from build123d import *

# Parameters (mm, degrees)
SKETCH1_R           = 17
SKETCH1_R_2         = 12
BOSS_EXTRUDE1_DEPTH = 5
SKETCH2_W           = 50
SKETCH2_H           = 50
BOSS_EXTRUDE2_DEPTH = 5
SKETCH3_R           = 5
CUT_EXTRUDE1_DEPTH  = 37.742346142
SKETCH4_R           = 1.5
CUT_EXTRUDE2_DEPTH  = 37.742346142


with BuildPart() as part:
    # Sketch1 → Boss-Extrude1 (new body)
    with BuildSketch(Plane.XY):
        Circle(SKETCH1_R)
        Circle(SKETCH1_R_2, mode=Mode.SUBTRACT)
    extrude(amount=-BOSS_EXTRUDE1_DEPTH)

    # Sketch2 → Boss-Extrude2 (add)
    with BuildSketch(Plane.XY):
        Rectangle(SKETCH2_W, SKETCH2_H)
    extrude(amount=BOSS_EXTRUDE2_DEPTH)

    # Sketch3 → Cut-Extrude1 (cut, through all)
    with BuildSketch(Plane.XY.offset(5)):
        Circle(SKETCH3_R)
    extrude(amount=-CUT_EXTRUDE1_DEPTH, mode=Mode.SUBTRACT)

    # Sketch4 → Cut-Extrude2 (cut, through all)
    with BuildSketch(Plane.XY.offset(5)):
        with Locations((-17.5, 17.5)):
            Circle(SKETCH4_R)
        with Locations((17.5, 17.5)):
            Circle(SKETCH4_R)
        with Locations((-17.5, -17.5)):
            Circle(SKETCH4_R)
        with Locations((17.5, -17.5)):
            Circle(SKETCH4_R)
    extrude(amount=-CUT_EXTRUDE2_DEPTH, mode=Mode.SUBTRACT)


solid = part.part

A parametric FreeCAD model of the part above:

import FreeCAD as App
import Part
import Sketcher
from FreeCAD import Vector


def add_polygon(sketch, points):
    """Adds a closed chain of lines whose ends are joined by coincident constraints."""
    first, n = sketch.GeometryCount, len(points)
    for a, b in zip(points, points[1:] + points[:1]):
        sketch.addGeometry(Part.LineSegment(App.Vector(*a, 0), App.Vector(*b, 0)), False)
    for i in range(n):
        sketch.addConstraint(Sketcher.Constraint("Coincident", first + i, 2, first + (i + 1) % n, 1))

doc = App.newDocument("Part")
params = doc.addObject("Spreadsheet::Sheet", "Params")
for row, (alias, value) in enumerate([
    ("sketch1_diameter", "34 mm"),
    ("sketch1_diameter2", "24 mm"),
    ("pad1_length", "5 mm"),
    ("sketch2_width", "50 mm"),
    ("pad2_length", "5 mm"),
    ("sketch3_diameter", "10 mm"),
    ("sketch4_diameter", "3 mm"),
], start=1):
    params.set(f"A{row}", alias)
    params.set(f"B{row}", "=" + value)
    params.setAlias(f"B{row}", alias)

body = doc.addObject("PartDesign::Body", "Body")

# Sketch on XY plane
sketch1 = body.newObject("Sketcher::SketchObject", "Sketch")
sketch1.AttachmentSupport = (doc.getObject("XY_Plane"), [""])
sketch1.MapMode = "FlatFace"
sketch1.addGeometry([
    Part.Circle(Vector(0, 0, 0), Vector(0, 0, 1), 17),
    Part.Circle(Vector(0, 0, 0), Vector(0, 0, 1), 12),
], False)
sketch1.addConstraint([
    Sketcher.Constraint("Coincident", 0, 3, -1, 1),
    Sketcher.Constraint("Coincident", 1, 3, -1, 1),
    Sketcher.Constraint("Diameter", 0, 34.0),
    Sketcher.Constraint("Diameter", 1, 24.0),
])
sketch1.setExpression("Constraints[2]", "Params.sketch1_diameter")
sketch1.setExpression("Constraints[3]", "Params.sketch1_diameter2")
pad1 = body.newObject("PartDesign::Pad", "Pad")
pad1.Profile = sketch1
pad1.setExpression("Length", "Params.pad1_length")
pad1.Reversed = True

# Sketch on XY plane
sketch2 = body.newObject("Sketcher::SketchObject", "Sketch001")
sketch2.AttachmentSupport = (doc.getObject("XY_Plane"), [""])
sketch2.MapMode = "FlatFace"
add_polygon(sketch2, [(-25, 25), (-25, -25), (25, -25), (25, 25)])  # lines 0-3
sketch2.addConstraint([
    Sketcher.Constraint("Vertical", 0),
    Sketcher.Constraint("Horizontal", 1),
    Sketcher.Constraint("Vertical", 2),
    Sketcher.Constraint("Horizontal", 3),
    Sketcher.Constraint("Symmetric", 0, 2, 2, 2, -1, 1),
    Sketcher.Constraint("Equal", 3, 0),
    Sketcher.Constraint("DistanceX", 1, 1, 1, 2, 50.0),
])
sketch2.setExpression("Constraints[10]", "Params.sketch2_width")
pad2 = body.newObject("PartDesign::Pad", "Pad001")
pad2.Profile = sketch2
pad2.setExpression("Length", "Params.pad2_length")

# Sketch on XY plane
sketch3 = body.newObject("Sketcher::SketchObject", "Sketch002")
sketch3.AttachmentSupport = (doc.getObject("XY_Plane"), [""])
sketch3.MapMode = "FlatFace"
sketch3.AttachmentOffset = App.Placement(Vector(0, 0, 5), App.Rotation())
sketch3.addGeometry(Part.Circle(Vector(0, 0, 0), Vector(0, 0, 1), 5), False)
sketch3.addConstraint([
    Sketcher.Constraint("Coincident", 0, 3, -1, 1),
    Sketcher.Constraint("Diameter", 0, 10.0),
])
sketch3.setExpression("Constraints[1]", "Params.sketch3_diameter")
pocket1 = body.newObject("PartDesign::Pocket", "Pocket")
pocket1.Profile = sketch3
pocket1.Type = "ThroughAll"

# Sketch on XY plane
sketch4 = body.newObject("Sketcher::SketchObject", "Sketch003")
sketch4.AttachmentSupport = (doc.getObject("XY_Plane"), [""])
sketch4.MapMode = "FlatFace"
sketch4.AttachmentOffset = App.Placement(Vector(0, 0, 5), App.Rotation())
sketch4.addGeometry([
    Part.Circle(Vector(-17.5, 17.5, 0), Vector(0, 0, 1), 1.5),
    Part.Circle(Vector(17.5, 17.5, 0), Vector(0, 0, 1), 1.5),
    Part.Circle(Vector(-17.5, -17.5, 0), Vector(0, 0, 1), 1.5),
    Part.Circle(Vector(17.5, -17.5, 0), Vector(0, 0, 1), 1.5),
], False)
sketch4.addConstraint([
    Sketcher.Constraint("Equal", 0, 1),
    Sketcher.Constraint("Equal", 1, 2),
    Sketcher.Constraint("Equal", 2, 3),
    Sketcher.Constraint("Symmetric", 1, 3, 2, 3, -1, 1),
    Sketcher.Constraint("Symmetric", 0, 3, 3, 3, -1, 1),
    Sketcher.Constraint("Symmetric", 0, 3, 1, 3, -2),
    Sketcher.Constraint("Diameter", 0, 3.0),
    Sketcher.Constraint("DistanceX", 0, 3, 1, 3, 35.0),
    Sketcher.Constraint("DistanceY", 2, 3, 0, 3, 35.0),
])
sketch4.setExpression("Constraints[6]", "Params.sketch4_diameter")
pocket2 = body.newObject("PartDesign::Pocket", "Pocket001")
pocket2.Profile = sketch4
pocket2.Type = "ThroughAll"

doc.recompute()
